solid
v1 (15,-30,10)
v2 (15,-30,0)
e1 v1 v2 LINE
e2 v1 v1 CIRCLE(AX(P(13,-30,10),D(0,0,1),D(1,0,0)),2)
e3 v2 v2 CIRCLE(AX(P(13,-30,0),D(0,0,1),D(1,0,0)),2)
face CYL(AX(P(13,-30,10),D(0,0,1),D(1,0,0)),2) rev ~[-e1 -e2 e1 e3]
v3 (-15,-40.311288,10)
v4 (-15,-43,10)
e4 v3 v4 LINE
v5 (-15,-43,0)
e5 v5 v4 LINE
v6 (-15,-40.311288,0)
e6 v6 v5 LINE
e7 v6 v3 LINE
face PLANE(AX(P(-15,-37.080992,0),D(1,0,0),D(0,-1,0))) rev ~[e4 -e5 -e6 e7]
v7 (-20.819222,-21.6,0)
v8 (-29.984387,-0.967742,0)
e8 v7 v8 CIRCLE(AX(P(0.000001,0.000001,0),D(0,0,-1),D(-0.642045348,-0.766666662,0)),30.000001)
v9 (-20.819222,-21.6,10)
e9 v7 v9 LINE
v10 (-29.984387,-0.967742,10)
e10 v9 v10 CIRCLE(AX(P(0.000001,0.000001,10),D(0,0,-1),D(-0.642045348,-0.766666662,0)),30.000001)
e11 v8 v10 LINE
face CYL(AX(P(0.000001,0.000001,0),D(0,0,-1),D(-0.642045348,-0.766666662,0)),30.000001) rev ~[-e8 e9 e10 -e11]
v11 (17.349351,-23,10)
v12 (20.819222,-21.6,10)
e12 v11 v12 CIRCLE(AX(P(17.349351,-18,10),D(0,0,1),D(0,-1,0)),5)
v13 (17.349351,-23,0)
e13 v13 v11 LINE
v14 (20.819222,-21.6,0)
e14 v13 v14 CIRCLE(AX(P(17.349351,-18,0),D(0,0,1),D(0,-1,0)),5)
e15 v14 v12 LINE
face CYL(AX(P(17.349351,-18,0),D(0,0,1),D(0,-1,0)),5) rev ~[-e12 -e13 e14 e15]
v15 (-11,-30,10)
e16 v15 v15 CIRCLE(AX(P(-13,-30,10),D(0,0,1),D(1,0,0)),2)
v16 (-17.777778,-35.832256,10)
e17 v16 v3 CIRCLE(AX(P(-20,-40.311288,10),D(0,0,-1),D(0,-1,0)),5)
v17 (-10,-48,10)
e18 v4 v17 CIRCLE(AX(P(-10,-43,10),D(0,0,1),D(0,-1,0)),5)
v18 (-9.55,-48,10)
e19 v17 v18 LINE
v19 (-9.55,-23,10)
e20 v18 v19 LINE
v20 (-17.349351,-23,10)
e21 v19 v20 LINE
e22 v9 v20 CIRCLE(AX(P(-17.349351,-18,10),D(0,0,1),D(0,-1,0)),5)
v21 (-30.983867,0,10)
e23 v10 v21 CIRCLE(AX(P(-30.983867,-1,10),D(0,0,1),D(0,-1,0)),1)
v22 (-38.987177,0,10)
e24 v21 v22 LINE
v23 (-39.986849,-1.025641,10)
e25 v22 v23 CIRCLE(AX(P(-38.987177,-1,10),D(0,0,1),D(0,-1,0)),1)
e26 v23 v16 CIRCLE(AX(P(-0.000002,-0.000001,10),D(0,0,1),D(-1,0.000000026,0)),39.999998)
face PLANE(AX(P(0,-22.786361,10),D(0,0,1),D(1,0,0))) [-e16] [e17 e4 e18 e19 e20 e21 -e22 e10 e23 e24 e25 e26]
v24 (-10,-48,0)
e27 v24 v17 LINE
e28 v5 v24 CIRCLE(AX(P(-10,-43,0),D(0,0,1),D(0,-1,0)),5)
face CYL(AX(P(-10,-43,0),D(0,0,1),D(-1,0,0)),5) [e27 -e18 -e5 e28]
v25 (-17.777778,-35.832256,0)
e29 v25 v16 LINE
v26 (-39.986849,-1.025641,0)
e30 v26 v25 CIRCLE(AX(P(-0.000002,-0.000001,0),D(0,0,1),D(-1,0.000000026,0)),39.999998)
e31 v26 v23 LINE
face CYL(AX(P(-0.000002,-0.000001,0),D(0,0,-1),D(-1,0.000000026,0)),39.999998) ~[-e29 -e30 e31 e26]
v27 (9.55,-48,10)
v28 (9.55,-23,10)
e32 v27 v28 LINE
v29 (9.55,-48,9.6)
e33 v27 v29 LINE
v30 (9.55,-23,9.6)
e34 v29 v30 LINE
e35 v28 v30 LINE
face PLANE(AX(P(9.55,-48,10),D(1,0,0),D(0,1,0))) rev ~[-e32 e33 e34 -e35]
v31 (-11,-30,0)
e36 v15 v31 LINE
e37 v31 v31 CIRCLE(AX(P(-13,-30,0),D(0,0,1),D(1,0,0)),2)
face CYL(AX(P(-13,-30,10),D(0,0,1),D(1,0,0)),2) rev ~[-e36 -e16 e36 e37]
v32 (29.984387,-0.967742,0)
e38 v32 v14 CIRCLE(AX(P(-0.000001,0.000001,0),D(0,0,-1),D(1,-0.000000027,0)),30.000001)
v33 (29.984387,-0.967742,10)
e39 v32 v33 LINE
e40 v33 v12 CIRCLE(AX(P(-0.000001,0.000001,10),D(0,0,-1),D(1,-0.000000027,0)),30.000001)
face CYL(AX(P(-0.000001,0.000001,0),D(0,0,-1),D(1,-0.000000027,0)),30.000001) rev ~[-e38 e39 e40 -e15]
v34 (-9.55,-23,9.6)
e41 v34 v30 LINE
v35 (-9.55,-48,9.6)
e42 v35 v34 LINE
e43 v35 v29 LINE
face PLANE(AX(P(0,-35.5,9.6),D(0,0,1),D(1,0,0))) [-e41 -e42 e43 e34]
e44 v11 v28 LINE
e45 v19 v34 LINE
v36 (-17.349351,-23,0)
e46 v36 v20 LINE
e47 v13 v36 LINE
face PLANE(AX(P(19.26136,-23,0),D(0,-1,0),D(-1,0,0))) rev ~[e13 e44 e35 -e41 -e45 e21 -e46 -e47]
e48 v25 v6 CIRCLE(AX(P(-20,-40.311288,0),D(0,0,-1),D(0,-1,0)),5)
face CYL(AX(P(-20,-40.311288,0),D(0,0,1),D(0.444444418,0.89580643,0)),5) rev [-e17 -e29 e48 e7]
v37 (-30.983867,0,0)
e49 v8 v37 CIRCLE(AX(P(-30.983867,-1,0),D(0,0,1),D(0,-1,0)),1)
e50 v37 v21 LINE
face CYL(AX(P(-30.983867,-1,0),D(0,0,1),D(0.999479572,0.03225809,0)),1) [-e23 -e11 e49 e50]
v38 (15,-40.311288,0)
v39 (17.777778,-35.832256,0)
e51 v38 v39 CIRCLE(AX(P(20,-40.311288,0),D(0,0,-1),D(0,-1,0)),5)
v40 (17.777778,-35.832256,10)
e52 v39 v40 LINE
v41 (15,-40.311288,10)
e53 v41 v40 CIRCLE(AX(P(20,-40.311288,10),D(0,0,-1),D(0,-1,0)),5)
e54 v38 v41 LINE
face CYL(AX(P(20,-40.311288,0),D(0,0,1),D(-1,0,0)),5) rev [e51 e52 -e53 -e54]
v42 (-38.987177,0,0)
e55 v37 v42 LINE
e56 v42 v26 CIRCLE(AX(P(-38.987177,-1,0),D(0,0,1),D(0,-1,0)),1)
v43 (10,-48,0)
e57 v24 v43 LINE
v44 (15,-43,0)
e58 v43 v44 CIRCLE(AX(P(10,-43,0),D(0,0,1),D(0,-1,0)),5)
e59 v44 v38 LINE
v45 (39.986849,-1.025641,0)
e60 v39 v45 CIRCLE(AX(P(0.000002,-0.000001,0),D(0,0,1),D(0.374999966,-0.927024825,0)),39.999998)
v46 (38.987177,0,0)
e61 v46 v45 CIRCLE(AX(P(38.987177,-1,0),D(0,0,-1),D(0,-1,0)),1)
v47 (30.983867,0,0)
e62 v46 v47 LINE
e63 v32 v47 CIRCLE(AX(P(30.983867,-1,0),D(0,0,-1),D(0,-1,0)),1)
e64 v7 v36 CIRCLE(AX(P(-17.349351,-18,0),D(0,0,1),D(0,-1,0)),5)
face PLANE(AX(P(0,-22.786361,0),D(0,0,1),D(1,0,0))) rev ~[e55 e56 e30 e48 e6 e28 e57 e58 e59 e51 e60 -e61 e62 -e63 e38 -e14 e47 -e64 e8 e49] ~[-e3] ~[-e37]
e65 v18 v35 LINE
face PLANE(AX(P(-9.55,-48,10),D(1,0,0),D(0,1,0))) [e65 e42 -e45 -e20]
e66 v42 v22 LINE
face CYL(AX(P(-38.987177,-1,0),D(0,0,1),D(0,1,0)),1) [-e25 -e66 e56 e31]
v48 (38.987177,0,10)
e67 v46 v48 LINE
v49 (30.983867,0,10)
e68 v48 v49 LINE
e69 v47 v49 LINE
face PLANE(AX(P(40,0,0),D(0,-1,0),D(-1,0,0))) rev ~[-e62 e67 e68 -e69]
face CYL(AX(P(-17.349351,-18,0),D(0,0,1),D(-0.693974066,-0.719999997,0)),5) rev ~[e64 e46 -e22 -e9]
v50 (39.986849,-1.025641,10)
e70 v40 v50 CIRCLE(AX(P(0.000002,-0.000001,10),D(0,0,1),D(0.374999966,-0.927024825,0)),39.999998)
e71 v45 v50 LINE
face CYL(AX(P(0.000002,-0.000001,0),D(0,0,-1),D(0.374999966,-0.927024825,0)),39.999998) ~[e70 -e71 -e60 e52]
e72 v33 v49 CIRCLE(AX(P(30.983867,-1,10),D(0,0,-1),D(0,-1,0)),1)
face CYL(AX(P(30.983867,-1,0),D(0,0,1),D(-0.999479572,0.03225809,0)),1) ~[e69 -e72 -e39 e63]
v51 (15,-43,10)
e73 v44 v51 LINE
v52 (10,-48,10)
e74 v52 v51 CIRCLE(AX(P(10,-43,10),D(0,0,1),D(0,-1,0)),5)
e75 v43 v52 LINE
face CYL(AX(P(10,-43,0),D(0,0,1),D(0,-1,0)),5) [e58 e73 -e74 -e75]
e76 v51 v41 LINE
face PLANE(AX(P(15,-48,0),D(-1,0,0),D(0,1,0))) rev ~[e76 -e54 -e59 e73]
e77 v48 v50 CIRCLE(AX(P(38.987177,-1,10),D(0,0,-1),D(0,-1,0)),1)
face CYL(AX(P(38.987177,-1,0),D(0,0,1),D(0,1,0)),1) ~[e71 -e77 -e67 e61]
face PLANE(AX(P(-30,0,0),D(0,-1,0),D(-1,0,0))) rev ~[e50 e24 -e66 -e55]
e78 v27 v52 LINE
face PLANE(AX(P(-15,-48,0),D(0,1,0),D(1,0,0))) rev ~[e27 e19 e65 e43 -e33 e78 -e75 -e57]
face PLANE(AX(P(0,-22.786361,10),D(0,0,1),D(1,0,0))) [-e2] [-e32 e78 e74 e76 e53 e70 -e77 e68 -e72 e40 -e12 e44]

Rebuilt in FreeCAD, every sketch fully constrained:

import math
import FreeCAD as App
import Part
import Sketcher
from FreeCAD import Vector


def edges_at(feature, points):
    """Names of the edges that pass closest to the given points."""
    edges = feature.Shape.Edges
    near = lambda p: min(range(len(edges)), key=lambda i: edges[i].distToShape(Part.Vertex(*p))[0])
    return sorted({f"Edge{near(p) + 1}" for p in points})


def add_polygon(sketch, points):
    """Adds a closed chain of lines whose ends are joined by coincident constraints."""
    first, n = sketch.GeometryCount, len(points)
    for a, b in zip(points, points[1:] + points[:1]):
        sketch.addGeometry(Part.LineSegment(App.Vector(*a, 0), App.Vector(*b, 0)), False)
    for i in range(n):
        sketch.addConstraint(Sketcher.Constraint("Coincident", first + i, 2, first + (i + 1) % n, 1))

doc = App.newDocument("Part")
body = doc.addObject("PartDesign::Body", "Body")

# Sketch on XY plane
sketch1 = body.newObject("Sketcher::SketchObject", "Sketch")
sketch1.AttachmentSupport = (doc.getObject("XY_Plane"), [""])
sketch1.MapMode = "FlatFace"
sketch1.addGeometry(Part.LineSegment(Vector(-30, 0, 0), Vector(-40, 0, 0)), False)
sketch1.addGeometry(Part.ArcOfCircle(Part.Circle(Vector(0, 0, 0), Vector(0, 0, 1), 40), math.radians(180), math.radians(248)), False)
sketch1.addGeometry(Part.LineSegment(Vector(-15, -37, 0), Vector(-15, -48, 0)), False)
sketch1.addGeometry(Part.LineSegment(Vector(-15, -48, 0), Vector(15, -48, 0)), False)
sketch1.addGeometry(Part.LineSegment(Vector(15, -48, 0), Vector(15, -37, 0)), False)
sketch1.addGeometry(Part.ArcOfCircle(Part.Circle(Vector(0, 0, 0), Vector(0, 0, 1), 40), math.radians(-68), math.radians(0)), False)
sketch1.addGeometry(Part.LineSegment(Vector(40, 0, 0), Vector(30, 0, 0)), False)
sketch1.addGeometry(Part.ArcOfCircle(Part.Circle(Vector(0, 0, 0), Vector(0, 0, 1), 30), math.radians(-50), math.radians(0)), False)
sketch1.addGeometry(Part.LineSegment(Vector(19, -23, 0), Vector(-19, -23, 0)), False)
sketch1.addGeometry(Part.ArcOfCircle(Part.Circle(Vector(0, 0, 0), Vector(0, 0, 1), 30), math.radians(-180), math.radians(-130)), False)
sketch1.addConstraint(Sketcher.Constraint("Coincident", 0, 2, 1, 1))
sketch1.addConstraint(Sketcher.Constraint("Coincident", 1, 2, 2, 1))
sketch1.addConstraint(Sketcher.Constraint("Coincident", 2, 2, 3, 1))
sketch1.addConstraint(Sketcher.Constraint("Coincident", 3, 2, 4, 1))
sketch1.addConstraint(Sketcher.Constraint("Coincident", 4, 2, 5, 1))
sketch1.addConstraint(Sketcher.Constraint("Coincident", 5, 2, 6, 1))
sketch1.addConstraint(Sketcher.Constraint("Coincident", 6, 2, 7, 2))
sketch1.addConstraint(Sketcher.Constraint("Coincident", 7, 1, 8, 1))
sketch1.addConstraint(Sketcher.Constraint("Coincident", 8, 2, 9, 2))
sketch1.addConstraint(Sketcher.Constraint("Coincident", 9, 1, 0, 1))
sketch1.addConstraint(Sketcher.Constraint("Horizontal", 0))
sketch1.addConstraint(Sketcher.Constraint("Vertical", 2))
sketch1.addConstraint(Sketcher.Constraint("Horizontal", 3))
sketch1.addConstraint(Sketcher.Constraint("Vertical", 4))
sketch1.addConstraint(Sketcher.Constraint("Horizontal", 6))
sketch1.addConstraint(Sketcher.Constraint("Horizontal", 8))
sketch1.addConstraint(Sketcher.Constraint("Coincident", 1, 3, -1, 1))
sketch1.addConstraint(Sketcher.Constraint("Coincident", 5, 3, -1, 1))
sketch1.addConstraint(Sketcher.Constraint("Coincident", 7, 3, -1, 1))
sketch1.addConstraint(Sketcher.Constraint("Coincident", 9, 3, -1, 1))
sketch1.addConstraint(Sketcher.Constraint("Equal", 1, 5))
sketch1.addConstraint(Sketcher.Constraint("Equal", 7, 9))
sketch1.addConstraint(Sketcher.Constraint("PointOnObject", 0, 2, -1))
sketch1.addConstraint(Sketcher.Constraint("PointOnObject", 5, 2, -1))
sketch1.addConstraint(Sketcher.Constraint("Horizontal", 1, 2, 4, 2))
sketch1.addConstraint(Sketcher.Constraint("Radius", 7, 30.000001))
sketch1.addConstraint(Sketcher.Constraint("DistanceX", 0, 2, 0, 1, 10.0))
sketch1.addConstraint(Sketcher.Constraint("DistanceX", 3, 1, 3, 2, 30.0))
sketch1.addConstraint(Sketcher.Constraint("DistanceY", 2, 2, -1, 1, 48.0))
sketch1.addConstraint(Sketcher.Constraint("DistanceY", 7, 1, -1, 1, 23.0))
pad1 = body.newObject("PartDesign::Pad", "Pad")
pad1.Profile = sketch1
pad1.Length = 10

# Sketch on XY plane
sketch2 = body.newObject("Sketcher::SketchObject", "Sketch001")
sketch2.AttachmentSupport = (doc.getObject("XY_Plane"), [""])
sketch2.MapMode = "FlatFace"
sketch2.AttachmentOffset = App.Placement(Vector(0, 0, 10), App.Rotation())
add_polygon(sketch2, [(-10, -23), (-10, -48), (10, -48), (10, -23)])  # lines 0-3
sketch2.addConstraint(Sketcher.Constraint("Vertical", 0))
sketch2.addConstraint(Sketcher.Constraint("Horizontal", 1))
sketch2.addConstraint(Sketcher.Constraint("Vertical", 2))
sketch2.addConstraint(Sketcher.Constraint("Horizontal", 3))
sketch2.addConstraint(Sketcher.Constraint("DistanceY", 0, 2, 0, 1, 25.0))
sketch2.addConstraint(Sketcher.Constraint("DistanceX", 1, 1, 1, 2, 19.1))
sketch2.addConstraint(Sketcher.Constraint("DistanceY", 0, 2, -1, 1, 48.0))
sketch2.addConstraint(Sketcher.Constraint("DistanceX", 0, 2, -1, 1, 9.55))
pocket1 = body.newObject("PartDesign::Pocket", "Pocket")
pocket1.Profile = sketch2
pocket1.Length = 0.4

# Sketch on XY plane
sketch3 = body.newObject("Sketcher::SketchObject", "Sketch002")
sketch3.AttachmentSupport = (doc.getObject("XY_Plane"), [""])
sketch3.MapMode = "FlatFace"
sketch3.AttachmentOffset = App.Placement(Vector(0, 0, 10), App.Rotation())
sketch3.addGeometry(Part.Circle(Vector(-13, -30, 0), Vector(0, 0, 1), 2), False)
sketch3.addGeometry(Part.Circle(Vector(13, -30, 0), Vector(0, 0, 1), 2), False)
sketch3.addConstraint(Sketcher.Constraint("Equal", 0, 1))
sketch3.addConstraint(Sketcher.Constraint("Symmetric", 0, 3, 1, 3, -2))
sketch3.addConstraint(Sketcher.Constraint("Diameter", 0, 4.0))
sketch3.addConstraint(Sketcher.Constraint("DistanceX", 0, 3, -1, 1, 13.0))
sketch3.addConstraint(Sketcher.Constraint("DistanceY", 0, 3, -1, 1, 30.0))
pocket2 = body.newObject("PartDesign::Pocket", "Pocket001")
pocket2.Profile = sketch3
pocket2.Type = "ThroughAll"
doc.recompute()

fillet = body.newObject("PartDesign::Fillet", "Fillet")
fillet.Base = (pocket2, edges_at(pocket2, [
    (-19.261, -23, 5),
    (19.261, -23, 5),
    (15, -37.081, 5),
    (-15, -37.081, 5),
    (-15, -48, 5),
    (15, -48, 5),
]))
fillet.Radius = 5
doc.recompute()

fillet2 = body.newObject("PartDesign::Fillet", "Fillet001")
fillet2.Base = (fillet, edges_at(fillet, [
    (-40, 0, 5),
    (-30, 0, 5),
    (30, 0, 5),
    (40, 0, 5),
]))
fillet2.Radius = 1

doc.recompute()
